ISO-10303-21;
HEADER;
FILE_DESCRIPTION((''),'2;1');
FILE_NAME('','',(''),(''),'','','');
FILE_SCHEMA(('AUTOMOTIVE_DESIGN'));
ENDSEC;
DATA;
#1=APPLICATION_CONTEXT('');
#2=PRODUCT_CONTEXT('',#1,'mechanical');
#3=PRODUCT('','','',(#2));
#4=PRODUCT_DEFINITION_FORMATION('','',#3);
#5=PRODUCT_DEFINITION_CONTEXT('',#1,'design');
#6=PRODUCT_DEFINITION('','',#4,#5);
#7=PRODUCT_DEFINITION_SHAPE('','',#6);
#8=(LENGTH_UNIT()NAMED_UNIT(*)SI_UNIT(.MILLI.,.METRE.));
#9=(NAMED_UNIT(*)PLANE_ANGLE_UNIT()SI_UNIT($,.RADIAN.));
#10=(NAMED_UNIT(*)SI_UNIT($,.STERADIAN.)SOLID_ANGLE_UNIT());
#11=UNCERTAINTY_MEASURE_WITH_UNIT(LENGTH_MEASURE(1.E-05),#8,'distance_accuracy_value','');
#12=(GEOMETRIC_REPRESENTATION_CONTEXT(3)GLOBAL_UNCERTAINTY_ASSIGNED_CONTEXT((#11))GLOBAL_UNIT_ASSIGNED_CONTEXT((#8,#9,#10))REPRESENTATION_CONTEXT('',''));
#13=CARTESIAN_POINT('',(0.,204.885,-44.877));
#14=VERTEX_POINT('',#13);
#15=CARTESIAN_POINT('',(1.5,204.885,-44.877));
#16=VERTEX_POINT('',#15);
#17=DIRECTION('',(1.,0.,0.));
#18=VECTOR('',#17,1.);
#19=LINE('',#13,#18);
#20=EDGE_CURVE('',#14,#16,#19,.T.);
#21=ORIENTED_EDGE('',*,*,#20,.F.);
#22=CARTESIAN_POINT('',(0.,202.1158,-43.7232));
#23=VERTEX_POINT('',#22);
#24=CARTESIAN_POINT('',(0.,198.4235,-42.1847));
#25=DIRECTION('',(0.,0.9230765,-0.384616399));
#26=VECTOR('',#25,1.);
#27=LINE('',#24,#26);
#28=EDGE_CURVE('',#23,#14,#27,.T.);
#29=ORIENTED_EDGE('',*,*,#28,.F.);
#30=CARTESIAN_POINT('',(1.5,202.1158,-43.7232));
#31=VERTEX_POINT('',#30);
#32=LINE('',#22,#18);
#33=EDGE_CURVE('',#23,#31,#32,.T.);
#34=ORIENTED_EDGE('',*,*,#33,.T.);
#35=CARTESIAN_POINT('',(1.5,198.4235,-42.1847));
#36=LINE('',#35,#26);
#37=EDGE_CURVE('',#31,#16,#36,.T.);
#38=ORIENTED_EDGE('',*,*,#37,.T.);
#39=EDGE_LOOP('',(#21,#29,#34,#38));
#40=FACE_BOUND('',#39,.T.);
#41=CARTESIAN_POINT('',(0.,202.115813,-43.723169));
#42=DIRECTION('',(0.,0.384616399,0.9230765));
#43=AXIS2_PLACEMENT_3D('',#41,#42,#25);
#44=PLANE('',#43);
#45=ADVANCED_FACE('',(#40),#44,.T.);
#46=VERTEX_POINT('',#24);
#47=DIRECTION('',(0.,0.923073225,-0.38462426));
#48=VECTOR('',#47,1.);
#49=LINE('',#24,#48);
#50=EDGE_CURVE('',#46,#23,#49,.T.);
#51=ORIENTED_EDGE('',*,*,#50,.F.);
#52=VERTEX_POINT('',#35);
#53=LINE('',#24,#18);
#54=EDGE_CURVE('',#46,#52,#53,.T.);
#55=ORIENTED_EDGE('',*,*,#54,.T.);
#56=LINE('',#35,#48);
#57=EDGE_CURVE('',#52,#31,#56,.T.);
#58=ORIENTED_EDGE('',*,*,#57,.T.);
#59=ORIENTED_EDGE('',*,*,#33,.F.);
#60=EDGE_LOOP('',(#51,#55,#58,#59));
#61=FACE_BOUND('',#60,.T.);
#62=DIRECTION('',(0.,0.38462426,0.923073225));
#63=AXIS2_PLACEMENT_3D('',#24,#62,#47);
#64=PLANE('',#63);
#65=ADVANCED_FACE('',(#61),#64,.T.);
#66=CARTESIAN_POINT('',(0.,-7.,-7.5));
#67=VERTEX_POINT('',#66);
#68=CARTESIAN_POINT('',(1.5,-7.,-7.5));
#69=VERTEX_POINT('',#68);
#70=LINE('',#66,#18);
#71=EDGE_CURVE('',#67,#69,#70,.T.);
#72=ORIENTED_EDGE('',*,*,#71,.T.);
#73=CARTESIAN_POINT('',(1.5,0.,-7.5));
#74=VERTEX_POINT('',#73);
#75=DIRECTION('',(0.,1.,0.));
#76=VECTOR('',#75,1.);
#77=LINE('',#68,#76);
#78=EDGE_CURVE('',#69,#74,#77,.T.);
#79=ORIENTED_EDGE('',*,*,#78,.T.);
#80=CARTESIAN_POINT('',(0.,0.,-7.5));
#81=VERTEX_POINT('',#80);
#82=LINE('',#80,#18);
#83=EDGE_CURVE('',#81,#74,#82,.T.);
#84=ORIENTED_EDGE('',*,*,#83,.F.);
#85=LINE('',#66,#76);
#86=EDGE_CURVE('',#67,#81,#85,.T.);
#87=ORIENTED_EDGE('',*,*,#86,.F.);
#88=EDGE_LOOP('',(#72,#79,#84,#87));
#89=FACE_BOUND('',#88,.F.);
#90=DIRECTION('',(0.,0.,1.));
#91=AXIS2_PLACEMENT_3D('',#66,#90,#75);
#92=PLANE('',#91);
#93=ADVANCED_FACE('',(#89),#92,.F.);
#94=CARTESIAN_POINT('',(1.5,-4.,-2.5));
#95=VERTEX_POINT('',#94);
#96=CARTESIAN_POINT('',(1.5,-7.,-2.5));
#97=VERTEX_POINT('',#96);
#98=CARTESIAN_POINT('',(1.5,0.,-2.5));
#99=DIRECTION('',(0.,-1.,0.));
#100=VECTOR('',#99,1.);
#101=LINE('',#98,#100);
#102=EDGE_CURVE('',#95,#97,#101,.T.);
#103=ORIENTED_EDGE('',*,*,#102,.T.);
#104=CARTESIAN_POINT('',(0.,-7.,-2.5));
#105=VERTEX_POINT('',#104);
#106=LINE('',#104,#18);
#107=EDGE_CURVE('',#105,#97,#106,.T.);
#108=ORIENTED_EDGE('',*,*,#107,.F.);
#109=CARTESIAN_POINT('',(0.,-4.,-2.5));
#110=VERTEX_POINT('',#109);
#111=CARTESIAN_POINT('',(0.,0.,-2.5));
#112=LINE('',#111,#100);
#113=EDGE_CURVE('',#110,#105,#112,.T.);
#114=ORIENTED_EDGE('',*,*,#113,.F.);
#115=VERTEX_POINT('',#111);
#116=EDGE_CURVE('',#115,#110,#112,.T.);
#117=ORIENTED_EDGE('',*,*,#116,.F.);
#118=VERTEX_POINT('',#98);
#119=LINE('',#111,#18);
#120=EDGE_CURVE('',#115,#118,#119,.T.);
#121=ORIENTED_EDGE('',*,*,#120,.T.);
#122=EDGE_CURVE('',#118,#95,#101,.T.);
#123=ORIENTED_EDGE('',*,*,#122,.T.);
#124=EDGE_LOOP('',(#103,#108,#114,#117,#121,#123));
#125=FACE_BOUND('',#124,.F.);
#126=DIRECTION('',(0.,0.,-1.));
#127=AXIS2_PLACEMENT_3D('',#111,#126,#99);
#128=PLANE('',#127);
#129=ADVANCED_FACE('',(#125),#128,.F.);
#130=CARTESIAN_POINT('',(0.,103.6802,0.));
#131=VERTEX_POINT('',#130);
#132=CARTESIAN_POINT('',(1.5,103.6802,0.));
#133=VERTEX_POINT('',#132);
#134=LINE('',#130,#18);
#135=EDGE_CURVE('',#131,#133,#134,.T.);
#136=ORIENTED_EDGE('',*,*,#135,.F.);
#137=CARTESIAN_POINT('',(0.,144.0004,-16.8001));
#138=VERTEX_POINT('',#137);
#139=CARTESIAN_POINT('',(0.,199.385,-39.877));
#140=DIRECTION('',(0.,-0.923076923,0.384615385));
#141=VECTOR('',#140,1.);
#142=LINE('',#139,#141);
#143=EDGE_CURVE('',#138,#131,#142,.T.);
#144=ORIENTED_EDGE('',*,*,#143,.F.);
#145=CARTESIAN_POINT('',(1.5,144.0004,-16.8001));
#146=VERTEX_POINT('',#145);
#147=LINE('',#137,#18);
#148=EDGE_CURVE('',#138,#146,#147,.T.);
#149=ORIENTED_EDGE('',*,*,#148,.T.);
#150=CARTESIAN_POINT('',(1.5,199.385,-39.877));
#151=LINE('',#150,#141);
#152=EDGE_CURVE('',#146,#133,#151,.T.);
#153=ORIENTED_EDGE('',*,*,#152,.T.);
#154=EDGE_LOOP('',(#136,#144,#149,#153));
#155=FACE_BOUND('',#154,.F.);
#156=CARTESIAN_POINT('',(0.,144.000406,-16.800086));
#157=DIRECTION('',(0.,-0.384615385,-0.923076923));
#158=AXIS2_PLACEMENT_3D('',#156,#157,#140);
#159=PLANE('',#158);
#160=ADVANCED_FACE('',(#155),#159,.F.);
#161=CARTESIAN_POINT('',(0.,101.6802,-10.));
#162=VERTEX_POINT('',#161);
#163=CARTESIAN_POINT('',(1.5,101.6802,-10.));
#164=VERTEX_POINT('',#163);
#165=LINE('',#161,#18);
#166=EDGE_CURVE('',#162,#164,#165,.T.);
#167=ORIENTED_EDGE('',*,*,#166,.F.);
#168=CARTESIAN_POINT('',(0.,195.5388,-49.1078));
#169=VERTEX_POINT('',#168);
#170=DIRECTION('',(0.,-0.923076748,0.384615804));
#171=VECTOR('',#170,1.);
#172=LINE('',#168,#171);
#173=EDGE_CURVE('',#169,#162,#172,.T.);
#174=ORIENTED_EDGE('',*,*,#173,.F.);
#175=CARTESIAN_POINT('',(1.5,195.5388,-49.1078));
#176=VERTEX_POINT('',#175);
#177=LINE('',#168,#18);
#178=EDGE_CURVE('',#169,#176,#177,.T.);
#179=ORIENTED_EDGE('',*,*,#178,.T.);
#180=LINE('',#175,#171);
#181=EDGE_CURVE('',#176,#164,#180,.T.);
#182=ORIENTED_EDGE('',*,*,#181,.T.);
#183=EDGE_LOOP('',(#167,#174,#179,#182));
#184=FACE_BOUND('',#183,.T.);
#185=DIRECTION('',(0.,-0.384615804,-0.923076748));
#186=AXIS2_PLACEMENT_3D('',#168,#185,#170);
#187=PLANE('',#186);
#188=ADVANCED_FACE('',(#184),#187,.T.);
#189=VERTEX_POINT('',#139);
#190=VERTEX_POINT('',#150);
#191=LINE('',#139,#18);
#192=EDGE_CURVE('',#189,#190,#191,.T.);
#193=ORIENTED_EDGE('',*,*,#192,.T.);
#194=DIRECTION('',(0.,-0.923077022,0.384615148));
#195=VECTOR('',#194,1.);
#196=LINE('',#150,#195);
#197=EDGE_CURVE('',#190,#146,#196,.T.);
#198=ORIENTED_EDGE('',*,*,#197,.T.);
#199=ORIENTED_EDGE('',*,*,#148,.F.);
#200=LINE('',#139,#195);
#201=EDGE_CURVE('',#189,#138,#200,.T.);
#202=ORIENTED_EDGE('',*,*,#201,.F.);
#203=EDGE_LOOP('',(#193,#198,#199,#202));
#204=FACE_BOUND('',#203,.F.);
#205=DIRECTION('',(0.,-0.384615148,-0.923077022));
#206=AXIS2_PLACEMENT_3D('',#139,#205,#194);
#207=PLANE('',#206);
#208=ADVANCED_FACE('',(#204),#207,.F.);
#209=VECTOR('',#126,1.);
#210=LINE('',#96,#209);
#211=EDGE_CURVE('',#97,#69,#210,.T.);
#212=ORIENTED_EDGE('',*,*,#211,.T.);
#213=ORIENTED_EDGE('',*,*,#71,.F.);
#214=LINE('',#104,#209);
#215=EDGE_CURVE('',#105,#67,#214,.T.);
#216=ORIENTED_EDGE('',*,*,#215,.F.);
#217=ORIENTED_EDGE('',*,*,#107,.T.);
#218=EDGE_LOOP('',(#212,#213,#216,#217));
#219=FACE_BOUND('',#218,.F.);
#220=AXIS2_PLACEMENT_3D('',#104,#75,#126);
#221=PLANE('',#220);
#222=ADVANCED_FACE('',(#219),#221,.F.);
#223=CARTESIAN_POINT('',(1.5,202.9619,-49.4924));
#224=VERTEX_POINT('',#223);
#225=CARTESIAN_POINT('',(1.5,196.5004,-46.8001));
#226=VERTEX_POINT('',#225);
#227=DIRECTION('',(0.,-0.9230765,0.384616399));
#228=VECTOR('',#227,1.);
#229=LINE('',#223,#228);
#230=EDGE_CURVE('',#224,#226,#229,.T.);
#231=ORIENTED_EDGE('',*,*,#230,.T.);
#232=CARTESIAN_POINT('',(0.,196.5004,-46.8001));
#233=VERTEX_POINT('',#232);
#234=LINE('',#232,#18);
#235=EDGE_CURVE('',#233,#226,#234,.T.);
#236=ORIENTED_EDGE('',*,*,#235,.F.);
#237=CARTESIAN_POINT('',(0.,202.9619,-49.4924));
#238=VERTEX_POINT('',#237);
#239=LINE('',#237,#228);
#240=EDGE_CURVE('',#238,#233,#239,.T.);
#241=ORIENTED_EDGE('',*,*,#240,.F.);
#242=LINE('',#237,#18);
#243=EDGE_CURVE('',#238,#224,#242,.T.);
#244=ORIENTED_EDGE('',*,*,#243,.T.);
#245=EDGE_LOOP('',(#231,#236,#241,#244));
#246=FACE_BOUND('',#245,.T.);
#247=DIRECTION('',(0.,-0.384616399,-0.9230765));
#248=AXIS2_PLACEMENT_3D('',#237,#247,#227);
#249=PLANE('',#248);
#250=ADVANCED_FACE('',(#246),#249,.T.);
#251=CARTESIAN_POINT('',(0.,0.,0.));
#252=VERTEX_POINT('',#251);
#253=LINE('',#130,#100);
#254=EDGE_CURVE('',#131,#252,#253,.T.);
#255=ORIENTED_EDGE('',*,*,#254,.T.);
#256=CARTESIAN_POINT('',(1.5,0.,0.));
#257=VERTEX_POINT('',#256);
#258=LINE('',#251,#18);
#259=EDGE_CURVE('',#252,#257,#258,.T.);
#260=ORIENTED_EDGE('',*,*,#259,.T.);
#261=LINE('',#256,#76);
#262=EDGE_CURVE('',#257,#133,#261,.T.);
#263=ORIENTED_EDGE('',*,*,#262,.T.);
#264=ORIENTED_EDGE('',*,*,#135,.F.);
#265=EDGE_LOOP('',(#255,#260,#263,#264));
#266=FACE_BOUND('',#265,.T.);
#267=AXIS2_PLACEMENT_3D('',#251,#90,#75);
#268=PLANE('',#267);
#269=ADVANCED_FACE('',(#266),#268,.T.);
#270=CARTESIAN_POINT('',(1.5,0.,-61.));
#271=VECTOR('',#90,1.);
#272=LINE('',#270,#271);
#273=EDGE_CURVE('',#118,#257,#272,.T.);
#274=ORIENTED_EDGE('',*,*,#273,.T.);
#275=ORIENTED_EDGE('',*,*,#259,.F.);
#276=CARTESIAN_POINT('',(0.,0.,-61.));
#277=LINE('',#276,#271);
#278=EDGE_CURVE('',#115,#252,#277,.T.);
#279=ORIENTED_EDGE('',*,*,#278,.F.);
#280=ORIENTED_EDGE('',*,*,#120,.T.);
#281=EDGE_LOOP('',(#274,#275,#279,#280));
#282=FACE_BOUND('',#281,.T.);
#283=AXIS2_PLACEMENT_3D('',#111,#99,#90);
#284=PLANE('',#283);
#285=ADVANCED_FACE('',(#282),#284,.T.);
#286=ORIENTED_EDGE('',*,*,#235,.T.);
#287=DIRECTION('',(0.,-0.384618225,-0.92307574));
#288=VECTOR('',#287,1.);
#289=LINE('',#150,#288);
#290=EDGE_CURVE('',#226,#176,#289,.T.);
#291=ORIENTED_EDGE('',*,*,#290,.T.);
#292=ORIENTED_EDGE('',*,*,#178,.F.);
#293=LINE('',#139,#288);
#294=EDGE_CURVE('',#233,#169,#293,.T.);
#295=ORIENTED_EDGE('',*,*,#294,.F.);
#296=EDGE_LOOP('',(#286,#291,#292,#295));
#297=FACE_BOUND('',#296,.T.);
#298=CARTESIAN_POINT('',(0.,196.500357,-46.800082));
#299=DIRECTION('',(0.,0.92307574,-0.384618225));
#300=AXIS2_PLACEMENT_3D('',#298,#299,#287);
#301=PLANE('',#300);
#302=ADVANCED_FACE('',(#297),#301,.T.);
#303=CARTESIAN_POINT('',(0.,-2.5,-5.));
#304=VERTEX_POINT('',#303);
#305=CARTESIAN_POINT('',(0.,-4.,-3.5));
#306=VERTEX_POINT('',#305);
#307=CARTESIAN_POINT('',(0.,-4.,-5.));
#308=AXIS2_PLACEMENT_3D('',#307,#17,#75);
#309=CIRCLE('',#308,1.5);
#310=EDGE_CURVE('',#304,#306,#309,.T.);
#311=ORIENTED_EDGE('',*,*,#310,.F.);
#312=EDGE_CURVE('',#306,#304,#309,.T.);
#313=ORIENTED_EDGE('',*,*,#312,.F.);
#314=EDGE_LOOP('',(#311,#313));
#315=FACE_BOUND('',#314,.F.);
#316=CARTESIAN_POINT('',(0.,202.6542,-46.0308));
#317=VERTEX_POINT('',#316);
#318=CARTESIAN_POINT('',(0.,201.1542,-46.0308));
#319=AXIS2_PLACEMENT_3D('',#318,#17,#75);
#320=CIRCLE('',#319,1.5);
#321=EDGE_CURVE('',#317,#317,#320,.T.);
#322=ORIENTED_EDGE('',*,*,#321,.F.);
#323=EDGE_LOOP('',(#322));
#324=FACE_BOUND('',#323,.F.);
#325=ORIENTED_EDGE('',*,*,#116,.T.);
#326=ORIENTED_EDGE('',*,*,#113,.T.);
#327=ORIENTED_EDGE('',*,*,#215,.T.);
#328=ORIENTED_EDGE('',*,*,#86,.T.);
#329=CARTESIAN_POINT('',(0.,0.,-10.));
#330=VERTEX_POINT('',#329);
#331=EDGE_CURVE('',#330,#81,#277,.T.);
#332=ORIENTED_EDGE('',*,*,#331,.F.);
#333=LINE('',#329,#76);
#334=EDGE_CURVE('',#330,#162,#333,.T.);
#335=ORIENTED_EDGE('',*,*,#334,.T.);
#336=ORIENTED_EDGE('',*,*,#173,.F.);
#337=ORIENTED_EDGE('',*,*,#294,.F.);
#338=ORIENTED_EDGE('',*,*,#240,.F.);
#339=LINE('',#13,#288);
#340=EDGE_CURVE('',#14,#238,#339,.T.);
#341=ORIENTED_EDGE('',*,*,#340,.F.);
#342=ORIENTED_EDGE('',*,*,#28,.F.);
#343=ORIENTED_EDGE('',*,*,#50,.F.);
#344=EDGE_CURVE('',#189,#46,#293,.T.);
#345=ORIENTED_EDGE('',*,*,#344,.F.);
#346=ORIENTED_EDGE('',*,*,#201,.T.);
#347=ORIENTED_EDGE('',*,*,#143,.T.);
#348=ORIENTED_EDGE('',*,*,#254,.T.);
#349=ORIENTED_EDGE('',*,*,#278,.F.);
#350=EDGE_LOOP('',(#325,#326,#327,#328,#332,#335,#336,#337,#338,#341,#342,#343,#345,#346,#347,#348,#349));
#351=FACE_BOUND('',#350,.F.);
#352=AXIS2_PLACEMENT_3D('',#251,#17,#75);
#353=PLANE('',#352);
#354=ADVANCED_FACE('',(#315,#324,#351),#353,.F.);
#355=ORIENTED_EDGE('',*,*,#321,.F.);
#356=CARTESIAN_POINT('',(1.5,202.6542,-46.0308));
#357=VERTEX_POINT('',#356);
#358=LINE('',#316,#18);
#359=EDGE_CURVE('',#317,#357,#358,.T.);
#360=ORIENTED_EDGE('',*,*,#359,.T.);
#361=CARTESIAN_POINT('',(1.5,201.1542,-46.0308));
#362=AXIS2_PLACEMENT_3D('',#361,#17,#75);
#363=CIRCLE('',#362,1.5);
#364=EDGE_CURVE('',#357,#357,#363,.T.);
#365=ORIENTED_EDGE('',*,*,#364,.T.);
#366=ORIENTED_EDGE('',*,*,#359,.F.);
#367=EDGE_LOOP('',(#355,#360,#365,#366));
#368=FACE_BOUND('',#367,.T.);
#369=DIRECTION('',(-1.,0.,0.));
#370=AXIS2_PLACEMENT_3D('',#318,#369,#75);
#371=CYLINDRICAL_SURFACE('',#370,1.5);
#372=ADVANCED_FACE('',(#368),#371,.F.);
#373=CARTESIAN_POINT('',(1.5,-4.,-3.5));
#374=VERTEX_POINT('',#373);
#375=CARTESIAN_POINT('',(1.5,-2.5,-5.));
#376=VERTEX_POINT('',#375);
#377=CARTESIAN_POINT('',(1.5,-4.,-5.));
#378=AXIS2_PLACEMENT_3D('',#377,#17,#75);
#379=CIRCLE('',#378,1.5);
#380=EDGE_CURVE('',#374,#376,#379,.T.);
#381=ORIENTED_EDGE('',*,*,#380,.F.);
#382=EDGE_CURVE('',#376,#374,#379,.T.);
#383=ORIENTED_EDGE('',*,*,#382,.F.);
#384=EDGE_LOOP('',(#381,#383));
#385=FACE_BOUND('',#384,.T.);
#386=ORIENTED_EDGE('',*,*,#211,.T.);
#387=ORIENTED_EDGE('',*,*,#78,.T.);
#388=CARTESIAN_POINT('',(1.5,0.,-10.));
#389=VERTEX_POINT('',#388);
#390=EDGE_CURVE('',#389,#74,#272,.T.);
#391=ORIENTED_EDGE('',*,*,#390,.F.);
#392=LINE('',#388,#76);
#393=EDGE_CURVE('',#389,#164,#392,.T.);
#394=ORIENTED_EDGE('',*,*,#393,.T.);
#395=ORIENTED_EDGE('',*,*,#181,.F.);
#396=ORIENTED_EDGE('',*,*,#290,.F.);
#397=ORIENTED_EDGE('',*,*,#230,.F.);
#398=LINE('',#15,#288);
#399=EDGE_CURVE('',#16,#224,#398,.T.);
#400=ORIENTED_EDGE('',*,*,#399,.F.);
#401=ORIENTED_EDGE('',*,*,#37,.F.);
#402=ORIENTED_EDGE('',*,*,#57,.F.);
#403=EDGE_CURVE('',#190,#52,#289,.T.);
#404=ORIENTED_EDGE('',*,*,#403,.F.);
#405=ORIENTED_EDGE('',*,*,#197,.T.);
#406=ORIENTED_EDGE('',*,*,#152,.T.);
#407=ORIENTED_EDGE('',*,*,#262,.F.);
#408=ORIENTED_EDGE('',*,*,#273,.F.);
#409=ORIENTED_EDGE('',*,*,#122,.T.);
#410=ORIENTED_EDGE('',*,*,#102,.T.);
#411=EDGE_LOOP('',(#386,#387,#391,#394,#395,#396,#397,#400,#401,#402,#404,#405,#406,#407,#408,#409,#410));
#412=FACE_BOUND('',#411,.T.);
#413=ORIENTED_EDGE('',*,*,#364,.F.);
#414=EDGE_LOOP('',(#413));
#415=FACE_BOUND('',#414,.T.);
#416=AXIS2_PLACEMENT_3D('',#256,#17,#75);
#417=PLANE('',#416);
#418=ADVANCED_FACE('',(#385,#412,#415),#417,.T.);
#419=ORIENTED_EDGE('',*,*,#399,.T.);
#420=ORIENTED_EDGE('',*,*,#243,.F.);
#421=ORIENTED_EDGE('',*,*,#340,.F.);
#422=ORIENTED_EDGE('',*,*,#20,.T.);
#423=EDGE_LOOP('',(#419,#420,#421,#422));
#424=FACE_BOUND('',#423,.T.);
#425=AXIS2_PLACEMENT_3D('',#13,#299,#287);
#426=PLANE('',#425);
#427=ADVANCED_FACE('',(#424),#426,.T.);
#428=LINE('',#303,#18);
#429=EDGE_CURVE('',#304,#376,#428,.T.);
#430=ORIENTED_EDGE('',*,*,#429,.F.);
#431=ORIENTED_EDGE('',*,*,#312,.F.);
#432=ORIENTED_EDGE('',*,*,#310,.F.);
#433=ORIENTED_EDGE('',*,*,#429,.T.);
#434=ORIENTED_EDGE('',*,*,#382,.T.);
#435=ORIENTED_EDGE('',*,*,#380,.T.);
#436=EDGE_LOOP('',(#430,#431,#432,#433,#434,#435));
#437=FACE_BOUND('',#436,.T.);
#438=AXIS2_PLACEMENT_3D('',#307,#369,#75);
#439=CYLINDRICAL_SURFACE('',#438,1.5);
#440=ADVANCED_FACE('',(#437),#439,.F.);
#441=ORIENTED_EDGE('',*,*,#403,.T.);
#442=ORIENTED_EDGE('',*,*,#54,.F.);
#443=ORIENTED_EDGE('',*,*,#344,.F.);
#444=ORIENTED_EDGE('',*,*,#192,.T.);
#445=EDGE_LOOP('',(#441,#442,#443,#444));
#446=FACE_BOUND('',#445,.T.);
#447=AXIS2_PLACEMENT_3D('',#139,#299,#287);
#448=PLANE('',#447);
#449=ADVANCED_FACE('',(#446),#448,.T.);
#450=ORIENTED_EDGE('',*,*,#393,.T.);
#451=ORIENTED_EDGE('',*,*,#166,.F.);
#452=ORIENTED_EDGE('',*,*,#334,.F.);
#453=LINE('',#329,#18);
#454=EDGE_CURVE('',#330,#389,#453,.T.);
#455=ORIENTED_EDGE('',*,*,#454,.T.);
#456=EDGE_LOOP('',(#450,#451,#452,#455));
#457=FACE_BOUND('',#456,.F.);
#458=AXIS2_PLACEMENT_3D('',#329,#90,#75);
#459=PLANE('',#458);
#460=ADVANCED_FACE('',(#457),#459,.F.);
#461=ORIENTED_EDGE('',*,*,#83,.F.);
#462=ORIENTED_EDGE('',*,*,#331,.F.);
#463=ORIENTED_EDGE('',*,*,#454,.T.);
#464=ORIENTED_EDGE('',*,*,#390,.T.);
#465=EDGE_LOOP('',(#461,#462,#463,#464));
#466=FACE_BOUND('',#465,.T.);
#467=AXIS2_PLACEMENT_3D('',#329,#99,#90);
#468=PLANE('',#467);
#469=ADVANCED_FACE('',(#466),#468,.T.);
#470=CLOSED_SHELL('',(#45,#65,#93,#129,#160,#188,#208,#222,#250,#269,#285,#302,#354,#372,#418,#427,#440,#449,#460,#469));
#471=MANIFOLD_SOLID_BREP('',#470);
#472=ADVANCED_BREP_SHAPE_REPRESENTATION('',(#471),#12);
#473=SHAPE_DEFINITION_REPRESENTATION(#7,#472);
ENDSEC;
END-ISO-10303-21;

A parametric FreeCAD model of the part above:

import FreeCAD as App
import Part
import Sketcher
from FreeCAD import Vector


def add_polygon(sketch, points):
    """Adds a closed chain of lines whose ends are joined by coincident constraints."""
    first, n = sketch.GeometryCount, len(points)
    for a, b in zip(points, points[1:] + points[:1]):
        sketch.addGeometry(Part.LineSegment(App.Vector(*a, 0), App.Vector(*b, 0)), False)
    for i in range(n):
        sketch.addConstraint(Sketcher.Constraint("Coincident", first + i, 2, first + (i + 1) % n, 1))

doc = App.newDocument("Part")
body = doc.addObject("PartDesign::Body", "Body")

# Sketch on YZ plane
sketch1 = doc.addObject("Sketcher::SketchObject", "Sketch")
body.addObject(sketch1)
sketch1.AttachmentSupport = (doc.YZ_Plane, [""])
sketch1.MapMode = "FlatFace"
add_polygon(sketch1, [(0, 0), (0, -2.5), (-4, -2.5), (-7, -2.5), (-7, -7.5), (0, -7.5), (0, -10), (101.7, -10), (195.5, -49.1), (196.5, -46.8), (203, -49.5), (204.9, -44.9), (202.1, -43.7), (198.4, -42.2), (199.4, -39.9), (144, -16.8), (103.7, 0)])  # lines 0-16
sketch1.addGeometry(Part.Circle(Vector(-4, -5, 0), Vector(0, 0, 1), 1.5), False)  # 17
sketch1.addGeometry(Part.Circle(Vector(201.2, -46, 0), Vector(0, 0, 1), 1.5), False)  # 18
sketch1.addConstraint(Sketcher.Constraint("Vertical", 0))
sketch1.addConstraint(Sketcher.Constraint("Horizontal", 1))
sketch1.addConstraint(Sketcher.Constraint("Horizontal", 2))
sketch1.addConstraint(Sketcher.Constraint("Vertical", 3))
sketch1.addConstraint(Sketcher.Constraint("Horizontal", 4))
sketch1.addConstraint(Sketcher.Constraint("Vertical", 5))
sketch1.addConstraint(Sketcher.Constraint("Horizontal", 6))
sketch1.addConstraint(Sketcher.Constraint("Horizontal", 16))
sketch1.addConstraint(Sketcher.Constraint("Coincident", 16, 2, -1, 1))
sketch1.addConstraint(Sketcher.Constraint("Equal", 17, 18))
sketch1.addConstraint(Sketcher.Constraint("PointOnObject", 4, 2, -2))
sketch1.addConstraint(Sketcher.Constraint("Perpendicular", 7, 8))
sketch1.addConstraint(Sketcher.Constraint("Perpendicular", 8, 9))
sketch1.addConstraint(Sketcher.Constraint("Perpendicular", 9, 10))
sketch1.addConstraint(Sketcher.Constraint("Perpendicular", 10, 11))
sketch1.addConstraint(Sketcher.Constraint("Parallel", 11, 12))
sketch1.addConstraint(Sketcher.Constraint("Perpendicular", 12, 13))
sketch1.addConstraint(Sketcher.Constraint("Perpendicular", 13, 14))
sketch1.addConstraint(Sketcher.Constraint("Parallel", 14, 15))
sketch1.addConstraint(Sketcher.Constraint("Vertical", 17, 3, 1, 2))
sketch1.addConstraint(Sketcher.Constraint("Equal", 0, 5))
sketch1.addConstraint(Sketcher.Constraint("Equal", 8, 13))
sketch1.addConstraint(Sketcher.Constraint("Diameter", 17, 3.0))
sketch1.addConstraint(Sketcher.Constraint("DistanceX", 1, 2, 1, 1, 4.0))
sketch1.addConstraint(Sketcher.Constraint("DistanceX", 2, 2, 2, 1, 3.0))
sketch1.addConstraint(Sketcher.Constraint("DistanceY", 3, 2, 3, 1, 5.0))
sketch1.addConstraint(Sketcher.Constraint("Distance", 9, 7.0))
sketch1.addConstraint(Sketcher.Constraint("Distance", 10, 5.0))
sketch1.addConstraint(Sketcher.Constraint("Distance", 11, 3.0))
sketch1.addConstraint(Sketcher.Constraint("Distance", 12, 4.0))
sketch1.addConstraint(Sketcher.Constraint("DistanceY", 0, 2, 0, 1, 2.5))
sketch1.addConstraint(Sketcher.Constraint("DistanceY", 17, 3, -1, 1, 5.0))
sketch1.addConstraint(Sketcher.Constraint("DistanceY", 10, 2, 13, 2, 5.0))
sketch1.addConstraint(Sketcher.Constraint("Distance", 8, 2.5))
sketch1.addConstraint(Sketcher.Constraint("Distance", 14, 60.0))
sketch1.addConstraint(Sketcher.Constraint("DistanceY", 8, 2, -1, 1, 46.8))
sketch1.addConstraint(Sketcher.Constraint("DistanceX", 6, 1, 6, 2, 101.6802))
sketch1.addConstraint(Sketcher.Constraint("DistanceX", 6, 2, 18, 3, 99.474))
sketch1.addConstraint(Sketcher.Constraint("DistanceY", 7, 2, 18, 3, 3.077))
pad1 = doc.addObject("PartDesign::Pad", "Pad")
body.addObject(pad1)
pad1.Profile = sketch1
pad1.Length = 1.5

doc.recompute()
